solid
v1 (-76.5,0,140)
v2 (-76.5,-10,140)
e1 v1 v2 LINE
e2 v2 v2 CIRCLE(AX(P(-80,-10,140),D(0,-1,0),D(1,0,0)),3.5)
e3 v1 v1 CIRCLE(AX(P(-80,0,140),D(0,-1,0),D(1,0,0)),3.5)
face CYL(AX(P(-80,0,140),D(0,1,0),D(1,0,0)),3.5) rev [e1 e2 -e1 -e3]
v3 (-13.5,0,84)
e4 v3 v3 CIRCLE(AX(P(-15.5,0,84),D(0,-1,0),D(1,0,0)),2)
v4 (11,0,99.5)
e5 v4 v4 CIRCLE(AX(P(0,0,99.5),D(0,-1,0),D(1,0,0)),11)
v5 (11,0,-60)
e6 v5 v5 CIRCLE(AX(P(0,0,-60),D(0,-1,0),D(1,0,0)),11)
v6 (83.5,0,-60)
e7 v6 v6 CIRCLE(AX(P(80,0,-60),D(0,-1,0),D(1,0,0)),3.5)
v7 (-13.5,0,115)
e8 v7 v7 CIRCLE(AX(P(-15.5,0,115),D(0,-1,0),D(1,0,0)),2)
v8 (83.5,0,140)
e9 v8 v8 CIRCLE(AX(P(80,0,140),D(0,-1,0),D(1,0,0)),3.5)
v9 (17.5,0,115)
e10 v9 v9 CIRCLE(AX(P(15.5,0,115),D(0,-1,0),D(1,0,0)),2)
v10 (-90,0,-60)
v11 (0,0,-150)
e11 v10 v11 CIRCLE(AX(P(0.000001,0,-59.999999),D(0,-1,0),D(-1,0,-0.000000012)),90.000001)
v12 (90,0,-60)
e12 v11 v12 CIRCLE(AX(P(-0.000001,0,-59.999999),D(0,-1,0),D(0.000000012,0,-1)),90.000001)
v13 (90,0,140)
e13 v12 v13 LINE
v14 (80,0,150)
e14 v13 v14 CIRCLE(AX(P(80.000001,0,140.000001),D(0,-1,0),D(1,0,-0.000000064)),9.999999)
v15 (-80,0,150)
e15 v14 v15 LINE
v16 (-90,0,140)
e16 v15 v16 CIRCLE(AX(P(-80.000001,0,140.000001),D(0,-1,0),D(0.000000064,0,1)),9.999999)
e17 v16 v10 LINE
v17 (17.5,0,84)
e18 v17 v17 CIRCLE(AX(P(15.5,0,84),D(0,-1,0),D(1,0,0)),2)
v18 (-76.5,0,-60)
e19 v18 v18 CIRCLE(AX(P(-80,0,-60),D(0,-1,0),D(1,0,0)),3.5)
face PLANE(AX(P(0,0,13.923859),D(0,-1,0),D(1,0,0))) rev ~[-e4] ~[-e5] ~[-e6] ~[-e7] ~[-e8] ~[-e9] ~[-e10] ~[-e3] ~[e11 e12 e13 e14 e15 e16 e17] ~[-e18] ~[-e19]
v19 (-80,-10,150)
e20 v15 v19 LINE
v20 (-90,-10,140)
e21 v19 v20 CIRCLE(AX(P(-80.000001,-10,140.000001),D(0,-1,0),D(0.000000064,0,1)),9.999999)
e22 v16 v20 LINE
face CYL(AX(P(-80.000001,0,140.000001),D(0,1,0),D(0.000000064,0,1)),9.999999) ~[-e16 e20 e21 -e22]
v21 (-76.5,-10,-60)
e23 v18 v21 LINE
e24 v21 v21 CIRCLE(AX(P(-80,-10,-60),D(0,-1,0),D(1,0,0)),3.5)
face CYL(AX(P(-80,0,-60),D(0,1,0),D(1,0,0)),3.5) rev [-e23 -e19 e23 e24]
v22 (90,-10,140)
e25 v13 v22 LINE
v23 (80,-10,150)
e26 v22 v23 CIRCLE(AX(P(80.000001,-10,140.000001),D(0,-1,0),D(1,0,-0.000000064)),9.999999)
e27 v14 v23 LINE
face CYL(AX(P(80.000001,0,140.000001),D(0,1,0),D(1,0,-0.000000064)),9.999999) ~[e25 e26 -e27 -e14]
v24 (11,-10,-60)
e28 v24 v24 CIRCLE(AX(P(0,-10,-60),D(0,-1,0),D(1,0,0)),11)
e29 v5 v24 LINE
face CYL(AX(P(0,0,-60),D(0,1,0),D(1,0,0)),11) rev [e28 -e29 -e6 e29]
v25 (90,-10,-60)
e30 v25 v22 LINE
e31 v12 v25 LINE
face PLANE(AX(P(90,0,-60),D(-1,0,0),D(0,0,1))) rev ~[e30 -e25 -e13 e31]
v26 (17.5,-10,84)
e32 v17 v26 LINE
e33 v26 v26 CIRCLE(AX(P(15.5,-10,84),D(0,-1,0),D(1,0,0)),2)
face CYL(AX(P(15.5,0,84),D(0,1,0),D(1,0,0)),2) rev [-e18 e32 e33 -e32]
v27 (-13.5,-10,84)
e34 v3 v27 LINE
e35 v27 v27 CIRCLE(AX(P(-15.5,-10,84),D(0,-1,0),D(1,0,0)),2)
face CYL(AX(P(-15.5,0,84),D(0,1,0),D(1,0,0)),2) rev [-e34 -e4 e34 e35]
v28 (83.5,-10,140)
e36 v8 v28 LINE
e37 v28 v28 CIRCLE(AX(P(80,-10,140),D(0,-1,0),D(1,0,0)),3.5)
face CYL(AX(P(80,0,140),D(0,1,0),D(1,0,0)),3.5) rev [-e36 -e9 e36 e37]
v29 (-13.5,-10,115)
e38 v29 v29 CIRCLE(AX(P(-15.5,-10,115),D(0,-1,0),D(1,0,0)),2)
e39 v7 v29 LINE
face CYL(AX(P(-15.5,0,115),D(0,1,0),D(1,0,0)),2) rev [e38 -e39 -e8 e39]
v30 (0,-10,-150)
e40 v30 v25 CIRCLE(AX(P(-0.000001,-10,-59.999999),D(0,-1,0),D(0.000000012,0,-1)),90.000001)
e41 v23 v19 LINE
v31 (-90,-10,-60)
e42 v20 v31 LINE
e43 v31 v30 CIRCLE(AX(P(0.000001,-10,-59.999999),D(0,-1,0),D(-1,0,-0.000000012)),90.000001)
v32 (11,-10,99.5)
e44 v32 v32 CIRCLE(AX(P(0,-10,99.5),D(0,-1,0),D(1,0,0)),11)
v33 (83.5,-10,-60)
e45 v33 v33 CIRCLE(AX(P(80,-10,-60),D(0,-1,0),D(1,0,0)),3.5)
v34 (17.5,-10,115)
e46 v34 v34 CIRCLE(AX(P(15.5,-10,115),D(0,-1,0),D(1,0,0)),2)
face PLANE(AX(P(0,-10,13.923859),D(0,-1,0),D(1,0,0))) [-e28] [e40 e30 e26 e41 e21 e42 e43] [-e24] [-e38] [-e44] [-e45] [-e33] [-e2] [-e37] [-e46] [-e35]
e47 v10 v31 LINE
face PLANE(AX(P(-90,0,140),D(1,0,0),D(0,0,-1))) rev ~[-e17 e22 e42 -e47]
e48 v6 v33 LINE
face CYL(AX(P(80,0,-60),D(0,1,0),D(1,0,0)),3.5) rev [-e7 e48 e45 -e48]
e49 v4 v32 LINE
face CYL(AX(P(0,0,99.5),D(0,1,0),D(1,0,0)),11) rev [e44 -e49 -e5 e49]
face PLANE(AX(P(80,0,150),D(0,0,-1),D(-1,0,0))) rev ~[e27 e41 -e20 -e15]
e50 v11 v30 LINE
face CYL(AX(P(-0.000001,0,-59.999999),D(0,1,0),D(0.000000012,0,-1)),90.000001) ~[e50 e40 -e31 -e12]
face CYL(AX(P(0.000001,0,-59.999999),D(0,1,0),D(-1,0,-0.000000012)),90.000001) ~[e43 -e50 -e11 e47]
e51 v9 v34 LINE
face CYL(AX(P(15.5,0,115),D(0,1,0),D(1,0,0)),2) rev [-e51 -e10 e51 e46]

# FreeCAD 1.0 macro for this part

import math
import FreeCAD as App
import Part
import Sketcher

V = App.Vector

doc = App.newDocument("Part")
body = doc.addObject("PartDesign::Body", "Body")

# Sketch on XZ plane
sketch1 = body.newObject("Sketcher::SketchObject", "Sketch")
sketch1.AttachmentSupport = (doc.getObject("XZ_Plane"), [""])
sketch1.MapMode = "FlatFace"
sketch1.addGeometry([
    Part.ArcOfCircle(Part.Circle(V(80, 140, 0), V(0, 0, 1), 10), math.radians(0), math.radians(90)),  # 0
    Part.LineSegment(V(80, 150, 0), V(-80, 150, 0)),  # 1
    Part.ArcOfCircle(Part.Circle(V(-80, 140, 0), V(0, 0, 1), 10), math.radians(90), math.radians(180)),  # 2
    Part.LineSegment(V(-90, 140, 0), V(-90, -60, 0)),  # 3
    Part.ArcOfCircle(Part.Circle(V(0, -60, 0), V(0, 0, 1), 90), math.radians(-180), math.radians(-90)),  # 4
    Part.ArcOfCircle(Part.Circle(V(0, -60, 0), V(0, 0, 1), 90), math.radians(-90), math.radians(0)),  # 5
    Part.LineSegment(V(90, -60, 0), V(90, 140, 0)),  # 6
    Part.Circle(V(-80, -60, 0), V(0, 0, 1), 3.5),  # 7
    Part.Circle(V(0, -60, 0), V(0, 0, 1), 11),  # 8
    Part.Circle(V(80, -60, 0), V(0, 0, 1), 3.5),  # 9
    Part.Circle(V(-15.5, 84, 0), V(0, 0, 1), 2),  # 10
    Part.Circle(V(-80, 140, 0), V(0, 0, 1), 3.5),  # 11
    Part.Circle(V(-15.5, 115, 0), V(0, 0, 1), 2),  # 12
    Part.Circle(V(15.5, 84, 0), V(0, 0, 1), 2),  # 13
    Part.Circle(V(0, 99.5, 0), V(0, 0, 1), 11),  # 14
    Part.Circle(V(15.5, 115, 0), V(0, 0, 1), 2),  # 15
    Part.Circle(V(80, 140, 0), V(0, 0, 1), 3.5),  # 16
], False)
sketch1.addConstraint([
    Sketcher.Constraint("Tangent", 0, 2, 1, 1),
    Sketcher.Constraint("Tangent", 1, 2, 2, 1),
    Sketcher.Constraint("Tangent", 2, 2, 3, 1),
    Sketcher.Constraint("Tangent", 3, 2, 4, 1),
    Sketcher.Constraint("Tangent", 4, 2, 5, 1),
    Sketcher.Constraint("Tangent", 5, 2, 6, 1),
    Sketcher.Constraint("Tangent", 6, 2, 0, 1),
    Sketcher.Constraint("Horizontal", 1),
    Sketcher.Constraint("Vertical", 3),
    Sketcher.Constraint("Vertical", 6),
    Sketcher.Constraint("Coincident", 8, 3, 4, 3),
    Sketcher.Constraint("Coincident", 11, 3, 2, 3),
    Sketcher.Constraint("Coincident", 16, 3, 0, 3),
    Sketcher.Constraint("Equal", 0, 2),
    Sketcher.Constraint("Equal", 4, 5),
    Sketcher.Constraint("Equal", 7, 9),
    Sketcher.Constraint("Equal", 9, 11),
    Sketcher.Constraint("Equal", 10, 12),
    Sketcher.Constraint("Equal", 12, 13),
    Sketcher.Constraint("Equal", 8, 14),
    Sketcher.Constraint("Equal", 13, 15),
    Sketcher.Constraint("Equal", 11, 16),
    Sketcher.Constraint("Symmetric", 7, 3, 9, 3, -2),
    Sketcher.Constraint("Symmetric", 10, 3, 13, 3, -2),
    Sketcher.Constraint("Symmetric", 12, 3, 15, 3, -2),
    Sketcher.Constraint("PointOnObject", 4, 3, -2),
    Sketcher.Constraint("PointOnObject", 14, 3, -2),
    Sketcher.Constraint("PointOnObject", 4, 2, -2),
    Sketcher.Constraint("Horizontal", 5, 3, 7, 3),
    Sketcher.Constraint("Vertical", 2, 3, 7, 3),
    Sketcher.Constraint("Vertical", 10, 3, 12, 3),
    Sketcher.Constraint("Diameter", 7, 7.0),
    Sketcher.Constraint("Diameter", 8, 22.0),
    Sketcher.Constraint("Diameter", 10, 4.0),
    Sketcher.Constraint("Radius", 0, 9.999999),
    Sketcher.Constraint("Radius", 4, 90.000001),
    Sketcher.Constraint("DistanceY", 3, 2, 3, 1, 200.0),
    Sketcher.Constraint("DistanceY", -1, 1, 0, 3, 140.000001),
    Sketcher.Constraint("DistanceY", -1, 1, 10, 3, 84.0),
    Sketcher.Constraint("DistanceY", -1, 1, 12, 3, 115.0),
    Sketcher.Constraint("DistanceX", 10, 3, 13, 3, 31.0),
    Sketcher.Constraint("DistanceY", -1, 1, 14, 3, 99.5),
])
pad1 = body.newObject("PartDesign::Pad", "Pad")
pad1.Profile = sketch1
pad1.Length = 10

doc.recompute()
